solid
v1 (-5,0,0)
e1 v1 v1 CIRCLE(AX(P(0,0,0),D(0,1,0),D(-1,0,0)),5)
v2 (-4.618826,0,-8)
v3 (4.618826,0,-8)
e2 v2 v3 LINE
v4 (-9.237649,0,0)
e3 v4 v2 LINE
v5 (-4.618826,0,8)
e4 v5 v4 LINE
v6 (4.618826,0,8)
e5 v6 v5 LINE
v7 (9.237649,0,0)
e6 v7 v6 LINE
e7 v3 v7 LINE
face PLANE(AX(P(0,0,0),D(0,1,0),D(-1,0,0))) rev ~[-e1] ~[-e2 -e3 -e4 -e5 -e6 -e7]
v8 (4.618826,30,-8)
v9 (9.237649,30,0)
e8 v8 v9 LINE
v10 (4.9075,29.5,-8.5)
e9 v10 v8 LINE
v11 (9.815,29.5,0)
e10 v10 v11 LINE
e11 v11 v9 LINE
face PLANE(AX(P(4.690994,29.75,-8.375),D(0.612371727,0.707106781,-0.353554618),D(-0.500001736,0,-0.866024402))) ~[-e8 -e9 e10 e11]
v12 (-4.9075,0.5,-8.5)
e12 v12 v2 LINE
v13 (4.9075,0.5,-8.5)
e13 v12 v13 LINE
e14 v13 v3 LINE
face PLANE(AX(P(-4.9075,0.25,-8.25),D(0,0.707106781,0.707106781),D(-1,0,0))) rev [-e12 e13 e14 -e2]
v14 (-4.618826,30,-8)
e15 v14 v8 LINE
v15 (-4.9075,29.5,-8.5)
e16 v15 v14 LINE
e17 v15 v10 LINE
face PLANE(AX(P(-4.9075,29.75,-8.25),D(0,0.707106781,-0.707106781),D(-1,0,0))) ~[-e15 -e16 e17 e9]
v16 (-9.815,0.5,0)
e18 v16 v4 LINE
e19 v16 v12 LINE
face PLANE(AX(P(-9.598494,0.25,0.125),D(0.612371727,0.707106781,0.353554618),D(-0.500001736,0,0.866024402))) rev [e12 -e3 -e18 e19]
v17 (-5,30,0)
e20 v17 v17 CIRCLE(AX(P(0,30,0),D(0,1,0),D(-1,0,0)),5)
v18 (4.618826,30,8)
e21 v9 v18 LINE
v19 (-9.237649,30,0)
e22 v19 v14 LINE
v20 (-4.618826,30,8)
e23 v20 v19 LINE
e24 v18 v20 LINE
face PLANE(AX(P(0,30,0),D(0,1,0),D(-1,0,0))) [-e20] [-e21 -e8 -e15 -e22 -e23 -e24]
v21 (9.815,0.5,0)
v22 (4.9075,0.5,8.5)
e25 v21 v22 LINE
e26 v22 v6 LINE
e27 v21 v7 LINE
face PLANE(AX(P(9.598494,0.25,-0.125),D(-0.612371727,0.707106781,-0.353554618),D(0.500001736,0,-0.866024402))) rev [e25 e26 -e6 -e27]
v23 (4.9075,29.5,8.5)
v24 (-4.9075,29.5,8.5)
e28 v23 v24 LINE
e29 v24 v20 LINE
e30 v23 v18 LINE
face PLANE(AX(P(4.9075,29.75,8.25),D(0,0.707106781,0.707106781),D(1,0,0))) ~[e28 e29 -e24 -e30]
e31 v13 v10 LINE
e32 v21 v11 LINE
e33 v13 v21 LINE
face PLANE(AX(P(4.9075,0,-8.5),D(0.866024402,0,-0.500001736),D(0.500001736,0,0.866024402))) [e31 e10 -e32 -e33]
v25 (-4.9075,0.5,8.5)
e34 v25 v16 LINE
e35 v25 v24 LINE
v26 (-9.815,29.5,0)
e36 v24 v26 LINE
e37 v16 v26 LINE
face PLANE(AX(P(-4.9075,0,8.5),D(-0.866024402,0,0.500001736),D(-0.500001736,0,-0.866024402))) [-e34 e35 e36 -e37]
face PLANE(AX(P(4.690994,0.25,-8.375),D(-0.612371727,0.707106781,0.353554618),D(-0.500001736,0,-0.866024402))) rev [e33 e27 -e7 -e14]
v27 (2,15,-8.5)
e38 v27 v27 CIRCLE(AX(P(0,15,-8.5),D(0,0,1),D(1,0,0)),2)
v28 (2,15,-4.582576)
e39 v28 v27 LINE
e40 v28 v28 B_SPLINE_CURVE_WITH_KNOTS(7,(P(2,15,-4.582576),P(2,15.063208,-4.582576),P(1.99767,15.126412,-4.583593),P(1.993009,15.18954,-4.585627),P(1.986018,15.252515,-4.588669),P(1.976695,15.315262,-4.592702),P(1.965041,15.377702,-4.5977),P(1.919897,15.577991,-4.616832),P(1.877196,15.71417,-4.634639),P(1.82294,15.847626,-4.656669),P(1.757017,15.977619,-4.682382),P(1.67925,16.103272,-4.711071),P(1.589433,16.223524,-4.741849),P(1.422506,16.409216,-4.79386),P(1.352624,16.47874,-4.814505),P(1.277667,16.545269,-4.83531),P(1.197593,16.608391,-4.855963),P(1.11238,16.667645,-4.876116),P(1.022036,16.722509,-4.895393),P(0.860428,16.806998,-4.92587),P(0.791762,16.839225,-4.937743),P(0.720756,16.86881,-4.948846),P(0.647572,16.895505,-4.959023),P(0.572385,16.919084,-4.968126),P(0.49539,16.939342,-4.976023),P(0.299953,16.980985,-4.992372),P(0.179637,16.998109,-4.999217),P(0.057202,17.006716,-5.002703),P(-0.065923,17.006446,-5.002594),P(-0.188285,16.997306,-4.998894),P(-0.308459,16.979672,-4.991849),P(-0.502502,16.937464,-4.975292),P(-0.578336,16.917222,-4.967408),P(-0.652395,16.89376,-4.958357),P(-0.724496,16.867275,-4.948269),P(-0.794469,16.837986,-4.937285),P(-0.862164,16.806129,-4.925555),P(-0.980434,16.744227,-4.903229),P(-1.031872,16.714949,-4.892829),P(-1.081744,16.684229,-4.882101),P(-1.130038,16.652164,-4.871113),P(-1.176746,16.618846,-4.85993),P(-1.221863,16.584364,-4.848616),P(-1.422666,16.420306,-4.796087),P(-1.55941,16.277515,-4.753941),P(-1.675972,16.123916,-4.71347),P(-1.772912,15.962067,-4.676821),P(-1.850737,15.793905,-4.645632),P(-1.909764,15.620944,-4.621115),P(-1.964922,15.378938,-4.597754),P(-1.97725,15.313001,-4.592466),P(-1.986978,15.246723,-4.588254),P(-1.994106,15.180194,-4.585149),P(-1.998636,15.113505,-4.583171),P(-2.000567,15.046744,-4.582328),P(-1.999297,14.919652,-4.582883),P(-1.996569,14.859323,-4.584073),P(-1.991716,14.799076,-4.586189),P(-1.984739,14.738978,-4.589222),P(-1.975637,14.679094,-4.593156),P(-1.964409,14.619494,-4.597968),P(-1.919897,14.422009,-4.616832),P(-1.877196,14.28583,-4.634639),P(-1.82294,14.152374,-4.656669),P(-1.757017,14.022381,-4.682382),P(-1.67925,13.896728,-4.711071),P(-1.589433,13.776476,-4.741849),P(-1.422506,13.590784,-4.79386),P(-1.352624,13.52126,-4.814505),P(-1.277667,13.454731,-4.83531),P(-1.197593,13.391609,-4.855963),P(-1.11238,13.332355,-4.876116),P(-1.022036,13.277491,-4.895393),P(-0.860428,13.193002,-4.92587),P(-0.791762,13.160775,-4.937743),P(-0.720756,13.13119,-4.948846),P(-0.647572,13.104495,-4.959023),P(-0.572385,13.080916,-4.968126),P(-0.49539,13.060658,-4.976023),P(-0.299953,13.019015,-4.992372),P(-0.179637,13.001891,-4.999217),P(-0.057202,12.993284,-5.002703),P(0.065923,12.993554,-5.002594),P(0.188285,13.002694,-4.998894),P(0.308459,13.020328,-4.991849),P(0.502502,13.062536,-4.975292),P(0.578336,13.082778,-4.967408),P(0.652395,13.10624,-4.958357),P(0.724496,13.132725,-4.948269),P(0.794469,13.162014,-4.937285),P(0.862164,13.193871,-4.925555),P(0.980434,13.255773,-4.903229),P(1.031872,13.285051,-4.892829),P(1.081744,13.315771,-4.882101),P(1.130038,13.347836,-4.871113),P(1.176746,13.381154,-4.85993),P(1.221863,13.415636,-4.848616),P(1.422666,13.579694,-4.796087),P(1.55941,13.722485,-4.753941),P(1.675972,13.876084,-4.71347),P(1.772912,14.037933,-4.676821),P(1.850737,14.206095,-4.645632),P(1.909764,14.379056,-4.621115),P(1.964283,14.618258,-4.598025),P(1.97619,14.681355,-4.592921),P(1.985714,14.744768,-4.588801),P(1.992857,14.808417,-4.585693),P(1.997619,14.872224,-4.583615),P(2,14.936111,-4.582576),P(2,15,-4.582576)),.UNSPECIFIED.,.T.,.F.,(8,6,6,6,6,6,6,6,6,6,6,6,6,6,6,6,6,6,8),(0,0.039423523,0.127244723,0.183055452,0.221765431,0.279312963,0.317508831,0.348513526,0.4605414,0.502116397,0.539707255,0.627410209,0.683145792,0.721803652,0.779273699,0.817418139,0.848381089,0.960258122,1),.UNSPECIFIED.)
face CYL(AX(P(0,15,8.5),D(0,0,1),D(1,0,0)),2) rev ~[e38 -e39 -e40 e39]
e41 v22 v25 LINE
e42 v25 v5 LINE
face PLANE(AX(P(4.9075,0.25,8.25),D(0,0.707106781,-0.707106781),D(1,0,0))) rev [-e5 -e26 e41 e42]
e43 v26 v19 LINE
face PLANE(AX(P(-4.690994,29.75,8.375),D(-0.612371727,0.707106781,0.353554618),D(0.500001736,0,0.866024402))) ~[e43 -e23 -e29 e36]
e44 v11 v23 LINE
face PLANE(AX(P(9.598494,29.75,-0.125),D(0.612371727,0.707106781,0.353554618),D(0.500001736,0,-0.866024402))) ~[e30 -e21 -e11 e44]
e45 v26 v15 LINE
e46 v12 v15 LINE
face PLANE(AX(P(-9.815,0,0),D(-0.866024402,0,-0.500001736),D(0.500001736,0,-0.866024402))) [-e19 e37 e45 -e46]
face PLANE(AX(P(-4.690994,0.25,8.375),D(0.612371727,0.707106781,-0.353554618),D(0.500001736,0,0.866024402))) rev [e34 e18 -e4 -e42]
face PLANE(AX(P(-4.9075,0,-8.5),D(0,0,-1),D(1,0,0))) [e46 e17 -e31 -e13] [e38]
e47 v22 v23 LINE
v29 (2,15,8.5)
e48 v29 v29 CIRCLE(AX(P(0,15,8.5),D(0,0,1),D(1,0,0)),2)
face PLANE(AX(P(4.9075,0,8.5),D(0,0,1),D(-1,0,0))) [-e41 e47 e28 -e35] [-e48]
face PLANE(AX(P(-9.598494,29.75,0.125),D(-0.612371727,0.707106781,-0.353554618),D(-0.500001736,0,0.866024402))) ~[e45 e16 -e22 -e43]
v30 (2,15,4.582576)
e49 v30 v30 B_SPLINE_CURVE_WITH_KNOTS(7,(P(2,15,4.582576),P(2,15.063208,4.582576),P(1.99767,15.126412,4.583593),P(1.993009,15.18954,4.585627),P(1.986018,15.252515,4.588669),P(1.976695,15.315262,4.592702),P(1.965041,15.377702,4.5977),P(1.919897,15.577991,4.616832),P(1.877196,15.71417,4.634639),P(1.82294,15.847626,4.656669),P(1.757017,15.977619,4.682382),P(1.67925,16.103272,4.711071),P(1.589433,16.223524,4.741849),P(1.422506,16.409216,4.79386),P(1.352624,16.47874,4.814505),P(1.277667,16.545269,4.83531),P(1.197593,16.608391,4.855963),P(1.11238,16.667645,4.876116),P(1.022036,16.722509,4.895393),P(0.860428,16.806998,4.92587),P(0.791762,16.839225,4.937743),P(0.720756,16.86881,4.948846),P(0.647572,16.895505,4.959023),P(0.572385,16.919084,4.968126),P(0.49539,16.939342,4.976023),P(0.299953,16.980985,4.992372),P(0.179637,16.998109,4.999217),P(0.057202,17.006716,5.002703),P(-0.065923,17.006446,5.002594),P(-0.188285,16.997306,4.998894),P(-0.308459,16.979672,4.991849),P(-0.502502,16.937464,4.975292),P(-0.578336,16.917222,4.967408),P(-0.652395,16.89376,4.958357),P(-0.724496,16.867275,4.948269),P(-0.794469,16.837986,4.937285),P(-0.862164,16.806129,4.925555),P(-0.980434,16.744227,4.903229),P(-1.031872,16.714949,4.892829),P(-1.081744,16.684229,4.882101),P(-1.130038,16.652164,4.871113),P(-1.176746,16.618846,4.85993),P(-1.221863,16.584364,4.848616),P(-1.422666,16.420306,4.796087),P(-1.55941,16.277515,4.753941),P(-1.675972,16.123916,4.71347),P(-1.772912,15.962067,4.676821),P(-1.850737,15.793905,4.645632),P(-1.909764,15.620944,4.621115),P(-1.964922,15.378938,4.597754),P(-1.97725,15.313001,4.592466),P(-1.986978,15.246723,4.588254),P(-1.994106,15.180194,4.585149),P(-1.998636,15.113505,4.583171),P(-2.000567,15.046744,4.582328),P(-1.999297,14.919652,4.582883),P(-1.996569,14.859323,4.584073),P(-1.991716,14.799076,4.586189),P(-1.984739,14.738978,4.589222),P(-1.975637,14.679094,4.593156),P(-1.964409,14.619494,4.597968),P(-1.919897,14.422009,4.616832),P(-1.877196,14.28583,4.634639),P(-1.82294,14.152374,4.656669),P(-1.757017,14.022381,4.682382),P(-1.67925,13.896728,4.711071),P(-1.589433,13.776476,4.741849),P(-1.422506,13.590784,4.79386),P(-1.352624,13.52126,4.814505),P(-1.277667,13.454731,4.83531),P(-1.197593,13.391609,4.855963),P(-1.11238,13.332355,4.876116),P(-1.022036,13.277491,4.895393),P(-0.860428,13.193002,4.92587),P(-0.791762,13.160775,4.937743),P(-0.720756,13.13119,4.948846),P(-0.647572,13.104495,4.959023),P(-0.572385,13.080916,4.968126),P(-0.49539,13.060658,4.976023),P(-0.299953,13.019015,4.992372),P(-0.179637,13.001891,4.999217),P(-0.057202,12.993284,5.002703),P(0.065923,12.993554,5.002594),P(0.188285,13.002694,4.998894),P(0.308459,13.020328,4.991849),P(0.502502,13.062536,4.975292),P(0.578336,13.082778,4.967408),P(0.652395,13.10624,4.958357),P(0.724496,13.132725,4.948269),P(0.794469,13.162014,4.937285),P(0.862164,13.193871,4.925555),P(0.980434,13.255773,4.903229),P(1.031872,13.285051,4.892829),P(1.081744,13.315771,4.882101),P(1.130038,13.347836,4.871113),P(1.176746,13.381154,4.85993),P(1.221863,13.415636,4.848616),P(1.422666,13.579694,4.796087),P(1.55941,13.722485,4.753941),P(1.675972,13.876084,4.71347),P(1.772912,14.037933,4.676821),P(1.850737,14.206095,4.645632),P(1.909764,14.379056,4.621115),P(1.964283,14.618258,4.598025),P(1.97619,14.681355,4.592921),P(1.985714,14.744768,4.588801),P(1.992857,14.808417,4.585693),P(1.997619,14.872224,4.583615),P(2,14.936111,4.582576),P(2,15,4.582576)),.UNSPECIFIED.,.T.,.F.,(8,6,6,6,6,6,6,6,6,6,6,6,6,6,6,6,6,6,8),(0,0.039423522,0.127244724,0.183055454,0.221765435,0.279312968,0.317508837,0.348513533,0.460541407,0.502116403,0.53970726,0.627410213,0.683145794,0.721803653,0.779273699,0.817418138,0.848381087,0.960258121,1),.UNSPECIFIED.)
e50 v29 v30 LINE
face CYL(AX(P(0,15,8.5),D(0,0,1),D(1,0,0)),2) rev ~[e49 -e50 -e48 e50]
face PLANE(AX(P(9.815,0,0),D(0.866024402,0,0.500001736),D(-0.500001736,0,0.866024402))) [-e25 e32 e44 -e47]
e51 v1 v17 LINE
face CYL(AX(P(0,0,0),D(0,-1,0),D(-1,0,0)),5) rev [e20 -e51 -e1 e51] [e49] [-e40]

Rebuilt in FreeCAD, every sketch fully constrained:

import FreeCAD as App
import Part
import Sketcher
Q = App.Units.Quantity


def edges_at(feature, points):
    """Names of the edges that pass closest to the given points."""
    edges = feature.Shape.Edges
    near = lambda p: min(range(len(edges)), key=lambda i: edges[i].distToShape(Part.Vertex(*p))[0])
    return sorted({f"Edge{near(p) + 1}" for p in points})

doc = App.newDocument("Part")
body = doc.addObject("PartDesign::Body", "Body")

sketch1 = body.newObject("Sketcher::SketchObject", "Sketch")
sketch1.AttachmentSupport = (doc.getObject("XZ_Plane"), [""])
sketch1.MapMode = "FlatFace"
sketch1.addGeometry(Part.LineSegment(App.Vector(-5, -8, 0), App.Vector(-10, 0, 0)), False)
sketch1.addGeometry(Part.LineSegment(App.Vector(-10, 0, 0), App.Vector(-5, 8, 0)), False)
sketch1.addGeometry(Part.LineSegment(App.Vector(-5, 8, 0), App.Vector(5, 8, 0)), False)
sketch1.addGeometry(Part.LineSegment(App.Vector(5, 8, 0), App.Vector(10, 0, 0)), False)
sketch1.addGeometry(Part.LineSegment(App.Vector(10, 0, 0), App.Vector(5, -8, 0)), False)
sketch1.addGeometry(Part.LineSegment(App.Vector(5, -8, 0), App.Vector(-5, -8, 0)), False)
sketch1.addGeometry(Part.Circle(App.Vector(0, 0, 0), App.Vector(0, 0, 1), 5), False)
sketch1.addConstraint(Sketcher.Constraint("Coincident", 0, 2, 1, 1))
sketch1.addConstraint(Sketcher.Constraint("Coincident", 1, 2, 2, 1))
sketch1.addConstraint(Sketcher.Constraint("Coincident", 2, 2, 3, 1))
sketch1.addConstraint(Sketcher.Constraint("Coincident", 3, 2, 4, 1))
sketch1.addConstraint(Sketcher.Constraint("Coincident", 4, 2, 5, 1))
sketch1.addConstraint(Sketcher.Constraint("Coincident", 5, 2, 0, 1))
sketch1.addConstraint(Sketcher.Constraint("Horizontal", 2))
sketch1.addConstraint(Sketcher.Constraint("Horizontal", 5))
sketch1.addConstraint(Sketcher.Constraint("Coincident", 6, 3, -1, 1))
sketch1.addConstraint(Sketcher.Constraint("Symmetric", 0, 2, 3, 2, -1, 1))
sketch1.addConstraint(Sketcher.Constraint("Symmetric", 1, 2, 4, 2, -1, 1))
sketch1.addConstraint(Sketcher.Constraint("PointOnObject", 0, 2, -1))
sketch1.addConstraint(Sketcher.Constraint("Parallel", 0, 3))
sketch1.addConstraint(Sketcher.Constraint("Vertical", 2, 2, 4, 2))
sketch1.addConstraint(Sketcher.Constraint("Diameter", 6, 10.0))
sketch1.addConstraint(Sketcher.Constraint("DistanceY", 4, 2, 2, 2, 17.0))
sketch1.addConstraint(Sketcher.Constraint("Angle", 0, Q("120 deg")))
sketch1.addConstraint(Sketcher.Constraint("DistanceX", 2, 1, 2, 2, 9.815))
pad1 = body.newObject("PartDesign::Pad", "Pad")
pad1.Profile = sketch1
pad1.Length = 30
pad1.Reversed = True
doc.recompute()

chamfer = body.newObject("PartDesign::Chamfer", "Chamfer")
chamfer.Base = (pad1, edges_at(pad1, [
    (7.361, 0, 4.25),
    (0, 0, 8.5),
    (-7.361, 0, 4.25),
    (-7.361, 0, -4.25),
    (0, 0, -8.5),
    (7.361, 0, -4.25),
    (7.361, 30, -4.25),
    (7.361, 30, 4.25),
    (0, 30, 8.5),
    (-7.361, 30, 4.25),
    (-7.361, 30, -4.25),
    (0, 30, -8.5),
]))
chamfer.Size = 0.5

sketch2 = body.newObject("Sketcher::SketchObject", "Sketch001")
sketch2.AttachmentSupport = (doc.getObject("XY_Plane"), [""])
sketch2.MapMode = "FlatFace"
sketch2.AttachmentOffset = App.Placement(App.Vector(0, 0, 8.5), App.Rotation())
sketch2.addGeometry(Part.Circle(App.Vector(0, 15, 0), App.Vector(0, 0, 1), 2), False)
sketch2.addConstraint(Sketcher.Constraint("PointOnObject", 0, 3, -2))
sketch2.addConstraint(Sketcher.Constraint("Diameter", 0, 4.0))
sketch2.addConstraint(Sketcher.Constraint("DistanceY", -1, 1, 0, 3, 15.0))
pocket1 = body.newObject("PartDesign::Pocket", "Pocket")
pocket1.Profile = sketch2
pocket1.Length = 26.75

doc.recompute()
